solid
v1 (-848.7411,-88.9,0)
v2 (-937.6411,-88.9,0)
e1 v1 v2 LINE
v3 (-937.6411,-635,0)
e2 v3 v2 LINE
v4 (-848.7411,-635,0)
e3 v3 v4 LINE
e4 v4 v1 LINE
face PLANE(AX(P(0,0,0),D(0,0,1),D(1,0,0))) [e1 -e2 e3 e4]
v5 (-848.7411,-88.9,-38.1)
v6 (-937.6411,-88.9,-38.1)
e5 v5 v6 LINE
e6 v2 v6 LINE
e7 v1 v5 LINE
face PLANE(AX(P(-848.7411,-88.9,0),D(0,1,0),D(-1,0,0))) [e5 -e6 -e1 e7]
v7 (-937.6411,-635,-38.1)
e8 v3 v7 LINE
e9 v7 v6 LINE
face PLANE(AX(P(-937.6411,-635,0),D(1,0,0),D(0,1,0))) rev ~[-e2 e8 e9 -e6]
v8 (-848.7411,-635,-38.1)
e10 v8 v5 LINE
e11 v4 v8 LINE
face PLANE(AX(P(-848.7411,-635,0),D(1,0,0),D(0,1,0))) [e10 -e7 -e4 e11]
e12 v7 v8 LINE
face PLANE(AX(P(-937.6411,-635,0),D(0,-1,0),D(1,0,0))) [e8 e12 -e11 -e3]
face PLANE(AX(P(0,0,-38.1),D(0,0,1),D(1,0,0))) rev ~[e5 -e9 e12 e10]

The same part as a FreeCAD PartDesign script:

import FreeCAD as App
import Part
import Sketcher
Q = App.Units.Quantity

doc = App.newDocument("Part")
body = doc.addObject("PartDesign::Body", "Body")

sketch1 = body.newObject("Sketcher::SketchObject", "Sketch")
sketch1.AttachmentSupport = (doc.getObject("XY_Plane"), [""])
sketch1.MapMode = "FlatFace"
sketch1.addGeometry(Part.LineSegment(App.Vector(-849, -635, 0), App.Vector(-849, -89, 0)), False)
sketch1.addGeometry(Part.LineSegment(App.Vector(-849, -89, 0), App.Vector(-938, -89, 0)), False)
sketch1.addGeometry(Part.LineSegment(App.Vector(-938, -89, 0), App.Vector(-938, -635, 0)), False)
sketch1.addGeometry(Part.LineSegment(App.Vector(-938, -635, 0), App.Vector(-849, -635, 0)), False)
sketch1.addConstraint(Sketcher.Constraint("Coincident", 0, 2, 1, 1))
sketch1.addConstraint(Sketcher.Constraint("Coincident", 1, 2, 2, 1))
sketch1.addConstraint(Sketcher.Constraint("Coincident", 2, 2, 3, 1))
sketch1.addConstraint(Sketcher.Constraint("Coincident", 3, 2, 0, 1))
sketch1.addConstraint(Sketcher.Constraint("Vertical", 0))
sketch1.addConstraint(Sketcher.Constraint("Horizontal", 1))
sketch1.addConstraint(Sketcher.Constraint("Vertical", 2))
sketch1.addConstraint(Sketcher.Constraint("Horizontal", 3))
sketch1.addConstraint(Sketcher.Constraint("DistanceX", 1, 2, 1, 1, Q("3.5 in")))
sketch1.addConstraint(Sketcher.Constraint("DistanceY", 0, 2, -1, 1, Q("3.5 in")))
sketch1.addConstraint(Sketcher.Constraint("DistanceY", 0, 1, 0, 2, Q("21.5 in")))
sketch1.addConstraint(Sketcher.Constraint("DistanceX", 0, 2, -1, 1, Q("33.415 in")))
pad1 = body.newObject("PartDesign::Pad", "Pad")
pad1.Profile = sketch1
pad1.Length = Q("1.5 in")
pad1.Reversed = True

doc.recompute()
